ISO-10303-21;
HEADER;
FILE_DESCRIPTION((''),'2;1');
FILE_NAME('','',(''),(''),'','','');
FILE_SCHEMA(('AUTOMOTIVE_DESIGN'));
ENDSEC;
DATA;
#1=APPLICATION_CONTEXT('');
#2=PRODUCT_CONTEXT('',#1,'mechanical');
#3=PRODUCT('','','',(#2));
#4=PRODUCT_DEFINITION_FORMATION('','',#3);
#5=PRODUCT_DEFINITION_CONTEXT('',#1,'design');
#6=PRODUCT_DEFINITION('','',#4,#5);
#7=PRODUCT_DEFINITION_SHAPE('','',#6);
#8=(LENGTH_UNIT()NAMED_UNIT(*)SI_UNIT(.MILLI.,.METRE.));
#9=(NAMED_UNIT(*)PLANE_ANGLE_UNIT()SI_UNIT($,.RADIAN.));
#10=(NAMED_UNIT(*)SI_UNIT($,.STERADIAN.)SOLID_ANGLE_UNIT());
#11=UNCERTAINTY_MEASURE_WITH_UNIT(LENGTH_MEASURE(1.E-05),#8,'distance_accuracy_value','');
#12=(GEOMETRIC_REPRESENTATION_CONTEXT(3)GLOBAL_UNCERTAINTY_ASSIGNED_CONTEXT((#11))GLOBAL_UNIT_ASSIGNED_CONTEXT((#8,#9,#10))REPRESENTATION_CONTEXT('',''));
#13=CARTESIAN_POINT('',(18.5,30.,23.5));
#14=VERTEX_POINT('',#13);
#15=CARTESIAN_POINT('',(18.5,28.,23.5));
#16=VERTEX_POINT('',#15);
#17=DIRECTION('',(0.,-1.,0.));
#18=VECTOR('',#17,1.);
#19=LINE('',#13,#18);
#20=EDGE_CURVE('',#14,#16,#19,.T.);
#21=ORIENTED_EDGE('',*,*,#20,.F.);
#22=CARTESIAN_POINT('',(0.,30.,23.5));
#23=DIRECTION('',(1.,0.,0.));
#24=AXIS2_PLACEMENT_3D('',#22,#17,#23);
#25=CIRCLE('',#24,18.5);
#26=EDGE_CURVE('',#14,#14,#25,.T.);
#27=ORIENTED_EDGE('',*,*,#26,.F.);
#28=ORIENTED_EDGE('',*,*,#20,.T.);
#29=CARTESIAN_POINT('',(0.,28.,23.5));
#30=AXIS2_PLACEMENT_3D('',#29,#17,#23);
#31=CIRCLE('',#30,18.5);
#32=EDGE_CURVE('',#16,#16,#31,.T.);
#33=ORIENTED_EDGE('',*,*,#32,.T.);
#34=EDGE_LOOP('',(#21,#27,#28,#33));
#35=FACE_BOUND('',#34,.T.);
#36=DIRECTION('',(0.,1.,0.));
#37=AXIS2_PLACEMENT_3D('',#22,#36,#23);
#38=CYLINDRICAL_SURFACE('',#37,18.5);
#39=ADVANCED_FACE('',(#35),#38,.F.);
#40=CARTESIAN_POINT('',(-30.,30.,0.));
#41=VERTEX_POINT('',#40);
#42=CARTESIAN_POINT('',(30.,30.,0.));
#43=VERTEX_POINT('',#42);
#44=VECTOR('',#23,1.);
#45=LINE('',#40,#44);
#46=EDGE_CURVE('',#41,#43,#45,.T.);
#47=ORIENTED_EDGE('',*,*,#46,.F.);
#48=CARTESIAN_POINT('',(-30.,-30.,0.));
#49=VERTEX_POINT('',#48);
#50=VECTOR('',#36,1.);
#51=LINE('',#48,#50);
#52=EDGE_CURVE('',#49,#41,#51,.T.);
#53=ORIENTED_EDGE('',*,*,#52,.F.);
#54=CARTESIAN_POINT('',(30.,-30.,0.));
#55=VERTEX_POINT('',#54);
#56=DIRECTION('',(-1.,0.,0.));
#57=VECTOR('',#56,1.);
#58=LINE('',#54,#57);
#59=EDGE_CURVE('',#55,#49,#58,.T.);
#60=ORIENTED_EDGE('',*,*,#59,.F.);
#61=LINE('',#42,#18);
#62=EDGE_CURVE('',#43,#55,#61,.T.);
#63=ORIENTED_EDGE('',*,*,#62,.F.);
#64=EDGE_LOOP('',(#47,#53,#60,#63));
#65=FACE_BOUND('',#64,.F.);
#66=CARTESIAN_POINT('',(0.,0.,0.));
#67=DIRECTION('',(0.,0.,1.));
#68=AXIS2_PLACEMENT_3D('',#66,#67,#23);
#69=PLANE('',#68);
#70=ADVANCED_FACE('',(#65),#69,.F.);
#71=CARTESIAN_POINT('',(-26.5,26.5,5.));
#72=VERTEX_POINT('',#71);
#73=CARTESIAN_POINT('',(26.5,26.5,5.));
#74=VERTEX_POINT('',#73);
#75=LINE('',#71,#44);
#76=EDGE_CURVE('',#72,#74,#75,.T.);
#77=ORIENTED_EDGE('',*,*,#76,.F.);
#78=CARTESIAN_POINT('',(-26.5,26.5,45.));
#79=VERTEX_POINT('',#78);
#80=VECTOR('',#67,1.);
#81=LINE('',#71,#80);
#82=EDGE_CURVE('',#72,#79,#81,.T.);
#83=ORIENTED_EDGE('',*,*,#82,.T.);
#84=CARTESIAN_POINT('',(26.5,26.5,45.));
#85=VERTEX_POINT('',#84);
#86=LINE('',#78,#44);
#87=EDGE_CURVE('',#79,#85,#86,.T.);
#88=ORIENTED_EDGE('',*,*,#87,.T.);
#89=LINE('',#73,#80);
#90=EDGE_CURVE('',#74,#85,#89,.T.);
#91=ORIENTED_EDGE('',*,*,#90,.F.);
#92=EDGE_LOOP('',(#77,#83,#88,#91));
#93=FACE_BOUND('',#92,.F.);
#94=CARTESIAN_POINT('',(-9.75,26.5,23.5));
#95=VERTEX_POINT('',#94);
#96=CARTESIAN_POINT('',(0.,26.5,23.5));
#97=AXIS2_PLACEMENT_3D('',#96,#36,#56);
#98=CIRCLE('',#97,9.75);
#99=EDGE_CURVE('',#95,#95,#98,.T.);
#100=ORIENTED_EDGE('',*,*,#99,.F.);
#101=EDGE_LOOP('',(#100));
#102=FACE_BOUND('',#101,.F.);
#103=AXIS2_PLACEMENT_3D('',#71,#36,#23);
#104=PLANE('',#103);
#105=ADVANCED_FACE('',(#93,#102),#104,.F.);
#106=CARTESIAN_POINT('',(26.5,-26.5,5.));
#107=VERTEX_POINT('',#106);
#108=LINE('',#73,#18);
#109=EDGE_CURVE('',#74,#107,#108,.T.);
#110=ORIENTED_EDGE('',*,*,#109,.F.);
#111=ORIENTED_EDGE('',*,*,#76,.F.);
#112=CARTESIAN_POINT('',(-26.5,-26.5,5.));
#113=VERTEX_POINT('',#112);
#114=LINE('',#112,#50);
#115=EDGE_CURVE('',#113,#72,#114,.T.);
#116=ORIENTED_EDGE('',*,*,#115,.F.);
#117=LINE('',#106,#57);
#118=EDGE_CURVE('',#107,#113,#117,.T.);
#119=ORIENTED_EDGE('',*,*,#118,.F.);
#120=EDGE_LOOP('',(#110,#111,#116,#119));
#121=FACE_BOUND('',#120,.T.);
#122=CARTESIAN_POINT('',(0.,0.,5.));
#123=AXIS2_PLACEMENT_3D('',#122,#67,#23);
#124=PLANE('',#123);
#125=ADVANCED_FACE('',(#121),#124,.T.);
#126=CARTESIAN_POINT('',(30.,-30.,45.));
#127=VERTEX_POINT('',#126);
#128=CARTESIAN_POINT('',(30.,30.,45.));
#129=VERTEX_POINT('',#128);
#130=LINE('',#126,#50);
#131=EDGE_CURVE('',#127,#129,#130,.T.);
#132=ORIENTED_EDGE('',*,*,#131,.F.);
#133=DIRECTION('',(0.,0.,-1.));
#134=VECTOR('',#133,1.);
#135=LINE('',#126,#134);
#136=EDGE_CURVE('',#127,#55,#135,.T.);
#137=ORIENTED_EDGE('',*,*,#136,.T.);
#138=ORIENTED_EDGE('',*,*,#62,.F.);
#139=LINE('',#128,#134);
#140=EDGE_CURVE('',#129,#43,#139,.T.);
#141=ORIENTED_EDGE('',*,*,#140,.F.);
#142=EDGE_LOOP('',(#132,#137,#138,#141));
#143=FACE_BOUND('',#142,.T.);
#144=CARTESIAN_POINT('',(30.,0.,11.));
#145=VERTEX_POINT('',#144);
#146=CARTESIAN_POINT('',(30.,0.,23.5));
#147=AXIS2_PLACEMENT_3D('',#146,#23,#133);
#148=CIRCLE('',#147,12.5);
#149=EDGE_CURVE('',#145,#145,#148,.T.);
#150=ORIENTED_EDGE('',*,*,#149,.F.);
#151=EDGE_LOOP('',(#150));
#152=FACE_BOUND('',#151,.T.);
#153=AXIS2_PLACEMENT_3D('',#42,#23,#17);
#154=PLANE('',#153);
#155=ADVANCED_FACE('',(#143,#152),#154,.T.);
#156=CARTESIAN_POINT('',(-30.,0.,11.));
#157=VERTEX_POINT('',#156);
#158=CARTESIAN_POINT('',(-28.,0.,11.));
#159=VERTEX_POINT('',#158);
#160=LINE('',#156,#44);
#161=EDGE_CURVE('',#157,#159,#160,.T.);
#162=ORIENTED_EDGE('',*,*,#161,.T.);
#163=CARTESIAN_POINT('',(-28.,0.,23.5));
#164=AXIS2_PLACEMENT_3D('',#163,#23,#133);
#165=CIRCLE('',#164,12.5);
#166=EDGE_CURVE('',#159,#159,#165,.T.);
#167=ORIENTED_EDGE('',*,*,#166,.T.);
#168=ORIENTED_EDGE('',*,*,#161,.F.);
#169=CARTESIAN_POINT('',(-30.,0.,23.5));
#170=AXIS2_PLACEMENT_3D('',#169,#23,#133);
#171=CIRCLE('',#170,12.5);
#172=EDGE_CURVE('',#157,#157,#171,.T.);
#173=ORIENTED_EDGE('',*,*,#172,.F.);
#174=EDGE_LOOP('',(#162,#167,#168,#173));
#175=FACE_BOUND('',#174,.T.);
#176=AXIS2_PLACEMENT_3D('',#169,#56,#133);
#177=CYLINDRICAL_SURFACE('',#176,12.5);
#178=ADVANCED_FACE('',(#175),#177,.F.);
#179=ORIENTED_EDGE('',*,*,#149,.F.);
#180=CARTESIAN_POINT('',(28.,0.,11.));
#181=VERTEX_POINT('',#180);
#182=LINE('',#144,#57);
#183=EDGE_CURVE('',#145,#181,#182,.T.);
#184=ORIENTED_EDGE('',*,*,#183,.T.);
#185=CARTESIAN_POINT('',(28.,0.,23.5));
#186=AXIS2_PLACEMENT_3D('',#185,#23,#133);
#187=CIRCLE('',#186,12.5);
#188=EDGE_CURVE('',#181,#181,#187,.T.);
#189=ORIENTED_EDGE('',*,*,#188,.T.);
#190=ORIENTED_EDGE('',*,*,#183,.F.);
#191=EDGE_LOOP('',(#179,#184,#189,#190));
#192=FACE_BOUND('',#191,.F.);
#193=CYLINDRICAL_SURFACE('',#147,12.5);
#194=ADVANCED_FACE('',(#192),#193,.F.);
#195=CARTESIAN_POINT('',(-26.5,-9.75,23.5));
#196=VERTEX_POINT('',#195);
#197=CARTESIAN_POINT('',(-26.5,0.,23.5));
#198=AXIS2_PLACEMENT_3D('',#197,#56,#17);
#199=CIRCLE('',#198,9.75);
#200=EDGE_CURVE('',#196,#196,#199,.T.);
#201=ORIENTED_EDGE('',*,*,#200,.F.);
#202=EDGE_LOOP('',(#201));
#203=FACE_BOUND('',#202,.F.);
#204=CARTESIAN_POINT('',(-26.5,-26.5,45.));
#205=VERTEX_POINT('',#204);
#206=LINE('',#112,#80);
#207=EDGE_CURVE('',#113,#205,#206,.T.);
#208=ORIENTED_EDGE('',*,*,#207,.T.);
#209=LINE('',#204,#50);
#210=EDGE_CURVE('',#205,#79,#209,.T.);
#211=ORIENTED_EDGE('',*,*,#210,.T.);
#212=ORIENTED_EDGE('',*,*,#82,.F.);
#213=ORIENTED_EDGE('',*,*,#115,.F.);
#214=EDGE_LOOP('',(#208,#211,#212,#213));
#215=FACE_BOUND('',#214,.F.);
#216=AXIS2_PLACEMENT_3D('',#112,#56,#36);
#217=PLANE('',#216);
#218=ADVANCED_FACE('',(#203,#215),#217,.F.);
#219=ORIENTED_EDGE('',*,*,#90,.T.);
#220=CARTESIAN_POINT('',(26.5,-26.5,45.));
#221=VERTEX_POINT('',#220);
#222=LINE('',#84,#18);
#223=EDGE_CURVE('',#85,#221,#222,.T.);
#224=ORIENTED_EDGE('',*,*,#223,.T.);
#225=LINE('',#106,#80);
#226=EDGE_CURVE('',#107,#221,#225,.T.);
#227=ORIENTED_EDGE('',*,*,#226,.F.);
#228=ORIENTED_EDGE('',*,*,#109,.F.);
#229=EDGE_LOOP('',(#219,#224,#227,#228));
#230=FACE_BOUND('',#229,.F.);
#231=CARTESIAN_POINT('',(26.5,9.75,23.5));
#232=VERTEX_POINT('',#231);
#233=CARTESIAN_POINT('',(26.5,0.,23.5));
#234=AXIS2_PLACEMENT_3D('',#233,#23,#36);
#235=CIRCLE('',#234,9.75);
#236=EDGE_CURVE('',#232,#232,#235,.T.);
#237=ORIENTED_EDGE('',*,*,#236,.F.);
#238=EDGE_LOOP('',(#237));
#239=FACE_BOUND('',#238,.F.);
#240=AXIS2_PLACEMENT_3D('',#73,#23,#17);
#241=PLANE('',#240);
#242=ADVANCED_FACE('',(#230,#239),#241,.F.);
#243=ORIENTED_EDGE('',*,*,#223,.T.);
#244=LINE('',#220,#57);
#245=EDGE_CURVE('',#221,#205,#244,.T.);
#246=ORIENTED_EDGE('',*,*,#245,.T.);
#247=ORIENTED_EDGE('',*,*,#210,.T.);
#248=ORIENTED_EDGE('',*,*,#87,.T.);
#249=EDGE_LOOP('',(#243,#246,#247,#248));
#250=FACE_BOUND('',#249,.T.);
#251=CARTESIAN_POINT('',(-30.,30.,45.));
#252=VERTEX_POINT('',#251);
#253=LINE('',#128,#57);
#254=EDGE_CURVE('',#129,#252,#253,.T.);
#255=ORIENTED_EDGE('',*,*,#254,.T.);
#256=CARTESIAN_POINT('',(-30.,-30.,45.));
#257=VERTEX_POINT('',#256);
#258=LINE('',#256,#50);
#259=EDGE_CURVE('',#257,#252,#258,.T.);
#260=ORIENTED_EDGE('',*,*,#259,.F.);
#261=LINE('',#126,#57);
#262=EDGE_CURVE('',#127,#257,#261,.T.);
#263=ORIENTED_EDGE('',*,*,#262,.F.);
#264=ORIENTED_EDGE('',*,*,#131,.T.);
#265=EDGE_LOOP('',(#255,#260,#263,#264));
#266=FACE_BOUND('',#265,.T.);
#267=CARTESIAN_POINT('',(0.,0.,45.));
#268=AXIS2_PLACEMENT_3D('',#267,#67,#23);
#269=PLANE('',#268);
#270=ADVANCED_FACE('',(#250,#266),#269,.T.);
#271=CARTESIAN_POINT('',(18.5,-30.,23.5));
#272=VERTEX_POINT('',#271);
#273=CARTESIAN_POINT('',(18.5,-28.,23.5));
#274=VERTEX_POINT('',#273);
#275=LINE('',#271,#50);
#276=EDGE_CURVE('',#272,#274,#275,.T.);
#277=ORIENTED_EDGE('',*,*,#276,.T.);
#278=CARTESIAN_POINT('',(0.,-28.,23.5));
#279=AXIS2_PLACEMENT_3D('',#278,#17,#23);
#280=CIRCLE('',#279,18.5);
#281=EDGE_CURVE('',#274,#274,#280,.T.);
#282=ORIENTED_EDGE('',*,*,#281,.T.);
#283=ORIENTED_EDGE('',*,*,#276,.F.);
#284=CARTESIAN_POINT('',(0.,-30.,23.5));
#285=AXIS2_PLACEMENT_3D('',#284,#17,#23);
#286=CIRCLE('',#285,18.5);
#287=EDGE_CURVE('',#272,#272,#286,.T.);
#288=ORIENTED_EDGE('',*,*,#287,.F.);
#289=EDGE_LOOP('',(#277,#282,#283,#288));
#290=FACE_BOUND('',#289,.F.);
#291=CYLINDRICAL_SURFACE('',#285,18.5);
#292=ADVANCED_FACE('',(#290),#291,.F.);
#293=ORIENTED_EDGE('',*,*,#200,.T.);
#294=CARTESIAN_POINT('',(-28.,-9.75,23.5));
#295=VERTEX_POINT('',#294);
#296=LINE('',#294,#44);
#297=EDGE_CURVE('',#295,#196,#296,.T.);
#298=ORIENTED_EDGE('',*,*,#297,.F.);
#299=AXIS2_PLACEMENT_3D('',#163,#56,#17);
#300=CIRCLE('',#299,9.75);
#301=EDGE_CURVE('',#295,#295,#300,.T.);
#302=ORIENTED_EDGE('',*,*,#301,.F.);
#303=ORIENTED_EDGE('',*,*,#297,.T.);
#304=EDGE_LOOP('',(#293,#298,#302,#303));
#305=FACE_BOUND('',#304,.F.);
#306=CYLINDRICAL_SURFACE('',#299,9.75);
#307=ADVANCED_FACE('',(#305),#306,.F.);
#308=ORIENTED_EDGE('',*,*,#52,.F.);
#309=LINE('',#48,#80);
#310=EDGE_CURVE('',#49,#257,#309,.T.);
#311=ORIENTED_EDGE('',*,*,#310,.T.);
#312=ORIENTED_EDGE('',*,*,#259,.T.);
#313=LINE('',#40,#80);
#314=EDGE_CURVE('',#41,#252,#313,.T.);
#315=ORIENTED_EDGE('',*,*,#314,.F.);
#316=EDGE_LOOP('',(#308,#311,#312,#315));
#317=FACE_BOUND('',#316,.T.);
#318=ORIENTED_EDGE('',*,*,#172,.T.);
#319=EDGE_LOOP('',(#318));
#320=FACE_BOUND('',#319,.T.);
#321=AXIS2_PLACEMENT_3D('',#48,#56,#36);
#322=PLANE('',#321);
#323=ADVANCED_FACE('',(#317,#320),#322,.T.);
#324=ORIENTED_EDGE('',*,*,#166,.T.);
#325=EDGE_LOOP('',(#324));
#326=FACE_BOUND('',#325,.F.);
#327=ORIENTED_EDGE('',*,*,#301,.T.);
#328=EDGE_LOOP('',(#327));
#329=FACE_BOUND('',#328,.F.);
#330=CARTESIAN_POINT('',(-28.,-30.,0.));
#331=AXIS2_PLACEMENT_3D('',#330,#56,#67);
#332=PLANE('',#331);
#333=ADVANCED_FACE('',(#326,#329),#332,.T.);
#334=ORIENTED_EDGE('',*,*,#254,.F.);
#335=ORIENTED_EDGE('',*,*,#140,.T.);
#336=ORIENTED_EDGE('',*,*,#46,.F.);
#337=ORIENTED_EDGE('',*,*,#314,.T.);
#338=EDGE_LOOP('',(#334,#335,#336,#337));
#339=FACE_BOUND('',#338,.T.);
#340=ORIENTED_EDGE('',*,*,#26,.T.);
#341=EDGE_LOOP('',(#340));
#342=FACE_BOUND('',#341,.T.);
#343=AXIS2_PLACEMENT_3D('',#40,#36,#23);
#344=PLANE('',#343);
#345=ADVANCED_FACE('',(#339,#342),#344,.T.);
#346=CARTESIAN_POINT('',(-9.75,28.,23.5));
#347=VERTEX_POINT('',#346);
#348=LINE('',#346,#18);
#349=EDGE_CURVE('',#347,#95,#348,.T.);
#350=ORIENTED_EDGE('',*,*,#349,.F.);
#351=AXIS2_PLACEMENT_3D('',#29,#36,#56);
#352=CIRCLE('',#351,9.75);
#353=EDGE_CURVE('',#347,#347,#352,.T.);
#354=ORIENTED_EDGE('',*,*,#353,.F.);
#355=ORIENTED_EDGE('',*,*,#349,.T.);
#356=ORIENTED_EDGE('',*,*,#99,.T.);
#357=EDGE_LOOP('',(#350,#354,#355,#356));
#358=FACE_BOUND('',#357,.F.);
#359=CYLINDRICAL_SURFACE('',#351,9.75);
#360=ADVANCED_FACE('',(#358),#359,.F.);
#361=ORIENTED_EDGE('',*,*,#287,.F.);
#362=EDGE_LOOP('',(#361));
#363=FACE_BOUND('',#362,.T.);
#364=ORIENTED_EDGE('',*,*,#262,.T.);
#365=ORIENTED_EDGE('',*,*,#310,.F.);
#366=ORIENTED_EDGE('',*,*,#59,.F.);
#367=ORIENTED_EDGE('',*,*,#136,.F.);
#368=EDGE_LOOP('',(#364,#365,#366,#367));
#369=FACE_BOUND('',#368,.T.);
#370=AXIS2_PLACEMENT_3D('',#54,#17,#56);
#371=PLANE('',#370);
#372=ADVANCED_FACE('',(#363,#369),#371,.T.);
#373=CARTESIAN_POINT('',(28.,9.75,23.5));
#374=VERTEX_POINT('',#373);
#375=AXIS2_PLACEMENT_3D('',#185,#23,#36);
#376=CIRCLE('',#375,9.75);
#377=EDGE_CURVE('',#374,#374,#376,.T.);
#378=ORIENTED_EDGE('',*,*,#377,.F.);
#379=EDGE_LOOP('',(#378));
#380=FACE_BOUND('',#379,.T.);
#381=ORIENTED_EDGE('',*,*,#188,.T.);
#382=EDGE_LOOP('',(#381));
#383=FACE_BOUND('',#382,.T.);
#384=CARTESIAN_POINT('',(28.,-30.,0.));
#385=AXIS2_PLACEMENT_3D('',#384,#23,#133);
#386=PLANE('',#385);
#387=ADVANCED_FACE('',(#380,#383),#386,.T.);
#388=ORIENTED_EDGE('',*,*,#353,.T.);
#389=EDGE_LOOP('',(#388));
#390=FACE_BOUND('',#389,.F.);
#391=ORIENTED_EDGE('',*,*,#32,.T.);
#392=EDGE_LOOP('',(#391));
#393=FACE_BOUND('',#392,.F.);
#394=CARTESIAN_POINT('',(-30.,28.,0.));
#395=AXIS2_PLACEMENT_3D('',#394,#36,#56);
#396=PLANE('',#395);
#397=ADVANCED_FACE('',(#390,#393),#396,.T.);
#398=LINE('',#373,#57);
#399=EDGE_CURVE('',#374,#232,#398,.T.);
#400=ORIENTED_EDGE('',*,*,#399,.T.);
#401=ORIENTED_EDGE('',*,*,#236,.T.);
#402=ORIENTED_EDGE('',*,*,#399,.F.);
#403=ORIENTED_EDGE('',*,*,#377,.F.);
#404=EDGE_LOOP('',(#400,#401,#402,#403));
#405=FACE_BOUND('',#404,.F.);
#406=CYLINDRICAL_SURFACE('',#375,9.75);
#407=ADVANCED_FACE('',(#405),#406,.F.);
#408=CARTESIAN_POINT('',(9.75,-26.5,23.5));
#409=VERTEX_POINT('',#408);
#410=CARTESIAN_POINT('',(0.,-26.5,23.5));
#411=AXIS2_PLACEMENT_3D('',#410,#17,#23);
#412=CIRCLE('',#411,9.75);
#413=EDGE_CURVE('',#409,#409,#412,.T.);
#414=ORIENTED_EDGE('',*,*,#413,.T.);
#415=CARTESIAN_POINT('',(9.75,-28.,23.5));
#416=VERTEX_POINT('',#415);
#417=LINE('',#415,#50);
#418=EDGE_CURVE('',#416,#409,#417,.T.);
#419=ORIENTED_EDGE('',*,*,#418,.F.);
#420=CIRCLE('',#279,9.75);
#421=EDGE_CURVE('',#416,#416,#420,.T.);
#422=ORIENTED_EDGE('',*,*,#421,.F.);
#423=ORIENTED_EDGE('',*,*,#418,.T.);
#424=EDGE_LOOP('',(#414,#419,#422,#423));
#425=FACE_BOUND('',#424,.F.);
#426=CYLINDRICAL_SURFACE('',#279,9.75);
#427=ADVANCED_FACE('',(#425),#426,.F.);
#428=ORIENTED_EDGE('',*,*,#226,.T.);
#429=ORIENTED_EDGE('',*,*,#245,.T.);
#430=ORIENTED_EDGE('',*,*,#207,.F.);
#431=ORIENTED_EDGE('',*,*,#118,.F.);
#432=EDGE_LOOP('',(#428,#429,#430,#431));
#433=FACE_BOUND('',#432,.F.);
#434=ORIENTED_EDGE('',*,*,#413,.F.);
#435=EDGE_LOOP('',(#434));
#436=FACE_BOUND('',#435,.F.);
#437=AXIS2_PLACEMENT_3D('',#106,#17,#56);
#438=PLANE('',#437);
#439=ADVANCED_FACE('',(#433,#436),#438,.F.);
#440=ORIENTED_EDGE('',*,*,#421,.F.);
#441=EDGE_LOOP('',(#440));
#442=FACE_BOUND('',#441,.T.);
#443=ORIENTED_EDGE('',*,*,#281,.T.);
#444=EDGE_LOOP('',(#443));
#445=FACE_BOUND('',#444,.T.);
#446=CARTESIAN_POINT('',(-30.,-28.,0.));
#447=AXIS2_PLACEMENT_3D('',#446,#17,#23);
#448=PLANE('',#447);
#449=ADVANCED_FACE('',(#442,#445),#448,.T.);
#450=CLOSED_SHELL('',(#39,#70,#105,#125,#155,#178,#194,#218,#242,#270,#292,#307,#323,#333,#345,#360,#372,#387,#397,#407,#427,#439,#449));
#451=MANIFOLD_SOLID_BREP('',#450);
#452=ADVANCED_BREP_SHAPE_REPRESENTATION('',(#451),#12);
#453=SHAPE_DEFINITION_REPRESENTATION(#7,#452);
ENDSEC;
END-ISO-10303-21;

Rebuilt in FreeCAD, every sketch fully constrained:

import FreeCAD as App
import Part
import Sketcher
from FreeCAD import Vector


def add_polygon(sketch, points):
    """Adds a closed chain of lines whose ends are joined by coincident constraints."""
    first, n = sketch.GeometryCount, len(points)
    for a, b in zip(points, points[1:] + points[:1]):
        sketch.addGeometry(Part.LineSegment(App.Vector(*a, 0), App.Vector(*b, 0)), False)
    for i in range(n):
        sketch.addConstraint(Sketcher.Constraint("Coincident", first + i, 2, first + (i + 1) % n, 1))

doc = App.newDocument("Part")
body = doc.addObject("PartDesign::Body", "Body")

# Sketch on XY plane
sketch1 = body.newObject("Sketcher::SketchObject", "Sketch")
sketch1.AttachmentSupport = (doc.getObject("XY_Plane"), [""])
sketch1.MapMode = "FlatFace"
add_polygon(sketch1, [(30, 30), (-30, 30), (-30, -30), (30, -30)])  # lines 0-3
sketch1.addConstraint([
    Sketcher.Constraint("Horizontal", 0),
    Sketcher.Constraint("Vertical", 1),
    Sketcher.Constraint("Horizontal", 2),
    Sketcher.Constraint("Vertical", 3),
    Sketcher.Constraint("Symmetric", 0, 2, 2, 2, -1, 1),
    Sketcher.Constraint("Equal", 2, 1),
    Sketcher.Constraint("DistanceX", 0, 2, 0, 1, 60.0),
])
pad1 = body.newObject("PartDesign::Pad", "Pad")
pad1.Profile = sketch1
pad1.Length = 5

# Sketch on XY plane
sketch2 = body.newObject("Sketcher::SketchObject", "Sketch001")
sketch2.AttachmentSupport = (doc.getObject("XY_Plane"), [""])
sketch2.MapMode = "FlatFace"
sketch2.AttachmentOffset = App.Placement(Vector(0, 0, 5), App.Rotation())
add_polygon(sketch2, [(30, -30), (30, 30), (-30, 30), (-30, -30)])  # lines 0-3
add_polygon(sketch2, [(-26, -26), (-26, 26), (26, 26), (26, -26)])  # lines 4-7
sketch2.addConstraint([
    Sketcher.Constraint("Vertical", 0),
    Sketcher.Constraint("Horizontal", 1),
    Sketcher.Constraint("Vertical", 2),
    Sketcher.Constraint("Horizontal", 3),
    Sketcher.Constraint("Vertical", 4),
    Sketcher.Constraint("Horizontal", 5),
    Sketcher.Constraint("Vertical", 6),
    Sketcher.Constraint("Horizontal", 7),
    Sketcher.Constraint("Symmetric", 0, 2, 2, 2, -1, 1),
    Sketcher.Constraint("Symmetric", 4, 2, 6, 2, -1, 1),
    Sketcher.Constraint("Equal", 3, 0),
    Sketcher.Constraint("Equal", 7, 4),
    Sketcher.Constraint("DistanceX", 5, 1, 5, 2, 53.0),
    Sketcher.Constraint("DistanceX", 1, 2, 1, 1, 60.0),
])
pad2 = body.newObject("PartDesign::Pad", "Pad001")
pad2.Profile = sketch2
pad2.Length = 40

# Sketch on XZ plane
sketch3 = body.newObject("Sketcher::SketchObject", "Sketch002")
sketch3.AttachmentSupport = (doc.getObject("XZ_Plane"), [""])
sketch3.MapMode = "FlatFace"
sketch3.AttachmentOffset = App.Placement(Vector(0, 0, 30), App.Rotation())
sketch3.addGeometry(Part.Circle(Vector(0, 24, 0), Vector(0, 0, 1), 18), False)
sketch3.addConstraint([
    Sketcher.Constraint("PointOnObject", 0, 3, -2),
    Sketcher.Constraint("Diameter", 0, 37.0),
    Sketcher.Constraint("DistanceY", -1, 1, 0, 3, 23.5),
])
pocket1 = body.newObject("PartDesign::Pocket", "Pocket")
pocket1.Profile = sketch3
pocket1.Length = 2

# Sketch on XZ plane
sketch4 = body.newObject("Sketcher::SketchObject", "Sketch003")
sketch4.AttachmentSupport = (doc.getObject("XZ_Plane"), [""])
sketch4.MapMode = "FlatFace"
sketch4.AttachmentOffset = App.Placement(Vector(0, 0, 28), App.Rotation())
sketch4.addGeometry(Part.Circle(Vector(0, 24, 0), Vector(0, 0, 1), 10), False)
sketch4.addConstraint([
    Sketcher.Constraint("PointOnObject", 0, 3, -2),
    Sketcher.Constraint("Diameter", 0, 19.5),
    Sketcher.Constraint("DistanceY", -1, 1, 0, 3, 23.5),
])
pocket2 = body.newObject("PartDesign::Pocket", "Pocket001")
pocket2.Profile = sketch4
pocket2.Length = 2
doc.recompute()

polarpattern = body.newObject("PartDesign::PolarPattern", "PolarPattern")
polarpattern.Originals = [pocket2]
polarpattern.Axis = (doc.getObject("Z_Axis"), [""])
polarpattern.Angle = 360
polarpattern.Occurrences = 4
body.Tip = polarpattern
doc.recompute()

mirrored = body.newObject("PartDesign::Mirrored", "Mirrored")
mirrored.Originals = [pocket1]
mirrored.MirrorPlane = (doc.getObject("XZ_Plane"), [""])
body.Tip = mirrored

# Sketch on YZ plane
sketch5 = body.newObject("Sketcher::SketchObject", "Sketch004")
sketch5.AttachmentSupport = (doc.getObject("YZ_Plane"), [""])
sketch5.MapMode = "FlatFace"
sketch5.AttachmentOffset = App.Placement(Vector(0, 0, 30), App.Rotation())
sketch5.addGeometry(Part.Circle(Vector(0, 24, 0), Vector(0, 0, 1), 12), False)
sketch5.addConstraint([
    Sketcher.Constraint("PointOnObject", 0, 3, -2),
    Sketcher.Constraint("Diameter", 0, 25.0),
    Sketcher.Constraint("DistanceY", -1, 1, 0, 3, 23.5),
])
pocket3 = body.newObject("PartDesign::Pocket", "Pocket002")
pocket3.Profile = sketch5
pocket3.Length = 2
doc.recompute()

mirrored2 = body.newObject("PartDesign::Mirrored", "Mirrored001")
mirrored2.Originals = [pocket3]
mirrored2.MirrorPlane = (doc.getObject("YZ_Plane"), [""])
body.Tip = mirrored2

doc.recompute()
